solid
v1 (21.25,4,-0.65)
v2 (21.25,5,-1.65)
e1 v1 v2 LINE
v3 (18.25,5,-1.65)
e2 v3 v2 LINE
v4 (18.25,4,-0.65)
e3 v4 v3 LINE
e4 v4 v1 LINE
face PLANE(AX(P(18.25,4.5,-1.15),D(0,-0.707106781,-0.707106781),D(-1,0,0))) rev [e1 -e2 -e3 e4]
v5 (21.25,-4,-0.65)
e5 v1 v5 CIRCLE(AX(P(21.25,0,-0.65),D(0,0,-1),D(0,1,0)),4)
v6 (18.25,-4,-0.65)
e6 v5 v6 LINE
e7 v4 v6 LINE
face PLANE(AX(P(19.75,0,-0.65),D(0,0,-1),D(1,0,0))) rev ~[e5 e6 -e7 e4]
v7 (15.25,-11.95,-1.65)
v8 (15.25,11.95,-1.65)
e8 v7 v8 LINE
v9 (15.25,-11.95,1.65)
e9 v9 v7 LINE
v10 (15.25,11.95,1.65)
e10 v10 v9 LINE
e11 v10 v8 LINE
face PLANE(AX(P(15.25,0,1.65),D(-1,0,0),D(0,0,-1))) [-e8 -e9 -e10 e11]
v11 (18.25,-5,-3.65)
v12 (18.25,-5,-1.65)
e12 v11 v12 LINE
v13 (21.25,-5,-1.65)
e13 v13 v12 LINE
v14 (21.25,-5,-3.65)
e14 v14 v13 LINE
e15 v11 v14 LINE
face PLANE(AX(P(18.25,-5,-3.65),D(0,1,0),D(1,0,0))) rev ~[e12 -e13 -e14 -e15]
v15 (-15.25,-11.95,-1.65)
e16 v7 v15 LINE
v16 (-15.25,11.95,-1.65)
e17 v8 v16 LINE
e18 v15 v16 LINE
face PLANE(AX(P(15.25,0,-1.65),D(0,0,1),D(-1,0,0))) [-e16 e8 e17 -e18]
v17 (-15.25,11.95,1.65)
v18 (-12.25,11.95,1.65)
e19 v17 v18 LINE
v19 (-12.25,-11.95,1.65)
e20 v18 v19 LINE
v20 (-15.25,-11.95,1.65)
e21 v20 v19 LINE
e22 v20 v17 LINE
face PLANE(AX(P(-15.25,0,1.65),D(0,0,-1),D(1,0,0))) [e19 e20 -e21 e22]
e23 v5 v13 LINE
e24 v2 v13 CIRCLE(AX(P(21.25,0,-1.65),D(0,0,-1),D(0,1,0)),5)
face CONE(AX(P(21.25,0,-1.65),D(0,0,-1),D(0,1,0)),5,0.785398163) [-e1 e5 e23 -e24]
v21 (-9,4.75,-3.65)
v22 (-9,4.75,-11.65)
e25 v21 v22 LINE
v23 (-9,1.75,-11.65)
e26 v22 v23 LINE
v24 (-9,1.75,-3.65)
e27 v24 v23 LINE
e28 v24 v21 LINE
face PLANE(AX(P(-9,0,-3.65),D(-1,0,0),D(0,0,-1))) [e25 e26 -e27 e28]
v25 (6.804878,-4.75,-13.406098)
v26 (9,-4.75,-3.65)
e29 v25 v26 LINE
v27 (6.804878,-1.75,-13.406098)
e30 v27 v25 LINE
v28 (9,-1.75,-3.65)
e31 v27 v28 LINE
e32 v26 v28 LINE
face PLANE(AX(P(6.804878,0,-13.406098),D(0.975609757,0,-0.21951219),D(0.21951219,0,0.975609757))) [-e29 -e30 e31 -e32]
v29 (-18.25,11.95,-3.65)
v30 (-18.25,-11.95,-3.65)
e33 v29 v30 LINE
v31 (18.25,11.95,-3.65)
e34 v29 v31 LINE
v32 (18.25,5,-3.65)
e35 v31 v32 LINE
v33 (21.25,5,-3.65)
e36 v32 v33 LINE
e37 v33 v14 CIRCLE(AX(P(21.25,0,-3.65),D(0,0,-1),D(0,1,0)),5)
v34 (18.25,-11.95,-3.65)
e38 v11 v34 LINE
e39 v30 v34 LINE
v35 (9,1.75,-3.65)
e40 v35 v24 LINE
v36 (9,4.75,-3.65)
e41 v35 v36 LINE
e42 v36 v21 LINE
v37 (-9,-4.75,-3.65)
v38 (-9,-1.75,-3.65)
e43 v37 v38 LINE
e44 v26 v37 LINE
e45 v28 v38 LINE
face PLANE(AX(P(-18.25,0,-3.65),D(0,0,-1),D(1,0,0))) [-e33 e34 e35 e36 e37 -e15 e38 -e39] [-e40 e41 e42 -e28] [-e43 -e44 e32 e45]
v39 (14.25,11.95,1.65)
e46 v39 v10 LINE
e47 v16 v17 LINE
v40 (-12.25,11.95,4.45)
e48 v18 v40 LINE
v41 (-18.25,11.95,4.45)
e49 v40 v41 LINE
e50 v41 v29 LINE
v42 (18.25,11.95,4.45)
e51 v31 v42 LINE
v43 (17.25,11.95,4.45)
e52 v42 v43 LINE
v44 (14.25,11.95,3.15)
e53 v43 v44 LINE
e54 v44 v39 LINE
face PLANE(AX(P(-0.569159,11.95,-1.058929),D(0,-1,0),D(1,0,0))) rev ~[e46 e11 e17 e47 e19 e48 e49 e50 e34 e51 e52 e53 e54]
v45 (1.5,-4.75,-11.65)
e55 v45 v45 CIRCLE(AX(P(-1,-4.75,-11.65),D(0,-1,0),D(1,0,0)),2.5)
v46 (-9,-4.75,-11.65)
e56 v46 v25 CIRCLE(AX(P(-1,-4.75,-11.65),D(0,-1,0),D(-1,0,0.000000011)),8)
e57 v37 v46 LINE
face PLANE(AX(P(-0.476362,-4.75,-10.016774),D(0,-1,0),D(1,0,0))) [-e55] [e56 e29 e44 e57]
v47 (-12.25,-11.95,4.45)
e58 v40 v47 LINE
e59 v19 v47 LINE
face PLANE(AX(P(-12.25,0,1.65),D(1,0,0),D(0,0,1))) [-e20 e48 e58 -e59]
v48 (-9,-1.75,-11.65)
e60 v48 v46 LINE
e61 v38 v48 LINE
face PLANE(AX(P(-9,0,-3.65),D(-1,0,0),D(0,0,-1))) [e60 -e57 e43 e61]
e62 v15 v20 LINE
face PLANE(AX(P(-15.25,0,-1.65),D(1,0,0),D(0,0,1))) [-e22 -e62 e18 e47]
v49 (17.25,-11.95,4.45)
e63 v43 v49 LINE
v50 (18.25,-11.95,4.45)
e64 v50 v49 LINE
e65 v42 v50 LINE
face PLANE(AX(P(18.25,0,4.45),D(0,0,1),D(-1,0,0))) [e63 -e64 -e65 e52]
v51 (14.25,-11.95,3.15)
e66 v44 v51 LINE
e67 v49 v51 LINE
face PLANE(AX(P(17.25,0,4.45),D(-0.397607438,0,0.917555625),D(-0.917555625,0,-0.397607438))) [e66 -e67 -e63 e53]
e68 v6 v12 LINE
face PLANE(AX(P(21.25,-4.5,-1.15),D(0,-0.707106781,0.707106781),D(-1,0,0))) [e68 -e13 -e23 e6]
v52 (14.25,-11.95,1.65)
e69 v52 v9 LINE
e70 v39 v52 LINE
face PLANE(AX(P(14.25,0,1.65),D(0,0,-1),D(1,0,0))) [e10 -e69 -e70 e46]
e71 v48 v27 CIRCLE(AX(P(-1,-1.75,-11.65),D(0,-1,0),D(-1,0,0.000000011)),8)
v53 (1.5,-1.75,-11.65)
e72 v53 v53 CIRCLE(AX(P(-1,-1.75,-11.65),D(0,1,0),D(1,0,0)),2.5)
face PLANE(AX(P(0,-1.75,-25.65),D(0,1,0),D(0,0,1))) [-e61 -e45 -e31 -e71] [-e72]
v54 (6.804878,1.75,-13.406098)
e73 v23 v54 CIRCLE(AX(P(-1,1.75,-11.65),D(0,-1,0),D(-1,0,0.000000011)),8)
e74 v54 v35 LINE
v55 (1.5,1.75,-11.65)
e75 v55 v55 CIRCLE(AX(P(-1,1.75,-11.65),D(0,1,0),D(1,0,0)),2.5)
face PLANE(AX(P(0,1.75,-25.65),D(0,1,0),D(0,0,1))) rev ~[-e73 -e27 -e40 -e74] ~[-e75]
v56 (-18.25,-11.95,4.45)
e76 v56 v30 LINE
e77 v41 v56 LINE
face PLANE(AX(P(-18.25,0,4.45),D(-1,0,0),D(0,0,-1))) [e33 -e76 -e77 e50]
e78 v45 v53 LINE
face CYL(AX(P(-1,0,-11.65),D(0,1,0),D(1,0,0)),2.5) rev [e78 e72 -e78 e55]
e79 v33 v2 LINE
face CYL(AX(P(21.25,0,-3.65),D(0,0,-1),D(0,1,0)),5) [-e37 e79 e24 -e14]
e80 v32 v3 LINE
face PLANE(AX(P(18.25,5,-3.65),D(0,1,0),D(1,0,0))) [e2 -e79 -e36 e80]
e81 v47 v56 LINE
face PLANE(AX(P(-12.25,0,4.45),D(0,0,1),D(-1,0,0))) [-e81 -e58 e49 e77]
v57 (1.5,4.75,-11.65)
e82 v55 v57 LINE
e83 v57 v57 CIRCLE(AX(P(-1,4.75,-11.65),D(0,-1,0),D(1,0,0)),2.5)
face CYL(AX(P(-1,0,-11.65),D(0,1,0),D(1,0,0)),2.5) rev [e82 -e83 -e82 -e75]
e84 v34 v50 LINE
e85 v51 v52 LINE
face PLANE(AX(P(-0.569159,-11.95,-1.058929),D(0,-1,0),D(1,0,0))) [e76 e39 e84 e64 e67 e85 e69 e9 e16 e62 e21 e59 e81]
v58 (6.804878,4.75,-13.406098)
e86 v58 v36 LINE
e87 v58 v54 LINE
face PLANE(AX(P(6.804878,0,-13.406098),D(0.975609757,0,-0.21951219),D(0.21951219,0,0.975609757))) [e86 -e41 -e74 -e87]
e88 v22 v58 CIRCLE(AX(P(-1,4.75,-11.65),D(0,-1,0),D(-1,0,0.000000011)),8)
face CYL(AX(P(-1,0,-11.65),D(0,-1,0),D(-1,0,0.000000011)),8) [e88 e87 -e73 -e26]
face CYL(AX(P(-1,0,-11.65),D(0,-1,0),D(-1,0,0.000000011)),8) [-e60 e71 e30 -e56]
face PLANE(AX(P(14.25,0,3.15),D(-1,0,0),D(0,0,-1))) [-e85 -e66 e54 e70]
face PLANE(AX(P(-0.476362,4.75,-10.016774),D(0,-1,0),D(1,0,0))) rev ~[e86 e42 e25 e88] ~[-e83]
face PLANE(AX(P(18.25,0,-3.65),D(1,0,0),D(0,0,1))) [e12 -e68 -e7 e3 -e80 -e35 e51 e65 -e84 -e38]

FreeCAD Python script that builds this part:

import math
import FreeCAD as App
import Part
import Sketcher

V = App.Vector


def edges_at(feature, points):
    """Names of the edges that pass closest to the given points."""
    edges = feature.Shape.Edges
    near = lambda p: min(range(len(edges)), key=lambda i: edges[i].distToShape(Part.Vertex(*p))[0])
    return sorted({f"Edge{near(p) + 1}" for p in points})


def add_polygon(sketch, points):
    """Adds a closed chain of lines whose ends are joined by coincident constraints."""
    first, n = sketch.GeometryCount, len(points)
    for a, b in zip(points, points[1:] + points[:1]):
        sketch.addGeometry(Part.LineSegment(App.Vector(*a, 0), App.Vector(*b, 0)), False)
    for i in range(n):
        sketch.addConstraint(Sketcher.Constraint("Coincident", first + i, 2, first + (i + 1) % n, 1))

doc = App.newDocument("Part")
body = doc.addObject("PartDesign::Body", "Body")

# Sketch on XZ plane
sketch1 = body.newObject("Sketcher::SketchObject", "Sketch")
sketch1.AttachmentSupport = (doc.getObject("XZ_Plane"), [""])
sketch1.MapMode = "FlatFace"
add_polygon(sketch1, [(-15.2, 1.6), (-12.2, 1.6), (-12.2, 4.5), (-18.2, 4.5), (-18.2, -3.6), (18.2, -3.6), (18.2, 4.5), (17.2, 4.5), (14.2, 3.1), (14.2, 1.6), (15.2, 1.6), (15.2, -1.6), (-15.2, -1.6)])  # lines 0-12
sketch1.addConstraint([
    Sketcher.Constraint("Horizontal", 0),
    Sketcher.Constraint("Vertical", 1),
    Sketcher.Constraint("Horizontal", 2),
    Sketcher.Constraint("Vertical", 3),
    Sketcher.Constraint("Horizontal", 4),
    Sketcher.Constraint("Vertical", 5),
    Sketcher.Constraint("Horizontal", 6),
    Sketcher.Constraint("Vertical", 8),
    Sketcher.Constraint("Horizontal", 9),
    Sketcher.Constraint("Vertical", 10),
    Sketcher.Constraint("Horizontal", 11),
    Sketcher.Constraint("Vertical", 12),
    Sketcher.Constraint("Symmetric", 9, 2, 11, 2, -1, 1),
    Sketcher.Constraint("Symmetric", 2, 2, 5, 2, -2),
    Sketcher.Constraint("Horizontal", 0, 2, 8, 2),
    Sketcher.Constraint("Equal", 6, 9),
    Sketcher.Constraint("DistanceX", 0, 1, 0, 2, 3.0),
    Sketcher.Constraint("DistanceX", 2, 2, 2, 1, 6.0),
    Sketcher.Constraint("DistanceX", 6, 2, 6, 1, 1.0),
    Sketcher.Constraint("DistanceX", 4, 1, 4, 2, 36.5),
    Sketcher.Constraint("DistanceY", 1, 1, 1, 2, 2.8),
    Sketcher.Constraint("DistanceY", 3, 2, 3, 1, 8.1),
    Sketcher.Constraint("DistanceY", 8, 2, 8, 1, 1.5),
    Sketcher.Constraint("DistanceY", 10, 2, 10, 1, 3.3),
])
pad1 = body.newObject("PartDesign::Pad", "Pad")
pad1.Profile = sketch1
pad1.Length = 23.9
pad1.Midplane = True

# Sketch on XZ plane
sketch2 = body.newObject("Sketcher::SketchObject", "Sketch001")
sketch2.AttachmentSupport = (doc.getObject("XZ_Plane"), [""])
sketch2.MapMode = "FlatFace"
sketch2.addGeometry([
    Part.LineSegment(V(-9, -3.6, 0), V(-9, -11.7, 0)),  # 0
    Part.ArcOfCircle(Part.Circle(V(-1, -11.7, 0), V(0, 0, 1), 8), math.radians(180), math.radians(347)),  # 1
    Part.LineSegment(V(6.8, -13.4, 0), V(9, -3.6, 0)),  # 2
    Part.LineSegment(V(9, -3.6, 0), V(-9, -3.6, 0)),  # 3
    Part.Circle(V(-1, -11.7, 0), V(0, 0, 1), 2.5),  # 4
], False)
sketch2.addConstraint([
    Sketcher.Constraint("Tangent", 0, 2, 1, 1),
    Sketcher.Constraint("Tangent", 1, 2, 2, 1),
    Sketcher.Constraint("Coincident", 2, 2, 3, 1),
    Sketcher.Constraint("Coincident", 3, 2, 0, 1),
    Sketcher.Constraint("Vertical", 0),
    Sketcher.Constraint("Horizontal", 3),
    Sketcher.Constraint("Coincident", 4, 3, 1, 3),
    Sketcher.Constraint("Diameter", 4, 5.0),
    Sketcher.Constraint("Radius", 1, 8.0),
    Sketcher.Constraint("DistanceX", 3, 2, 3, 1, 18.0),
    Sketcher.Constraint("DistanceY", 0, 2, 0, 1, 8.0),
    Sketcher.Constraint("DistanceX", 1, 3, -1, 1, 1.0),
    Sketcher.Constraint("DistanceY", 1, 3, -1, 1, 11.65),
])
pad2 = body.newObject("PartDesign::Pad", "Pad001")
pad2.Profile = sketch2
pad2.Length = 9.5
pad2.Midplane = True

# Sketch on YZ plane
sketch3 = body.newObject("Sketcher::SketchObject", "Sketch002")
sketch3.AttachmentSupport = (doc.getObject("YZ_Plane"), [""])
sketch3.MapMode = "FlatFace"
add_polygon(sketch3, [(-1.8, -3.6), (-1.8, -25.6), (1.8, -25.6), (1.8, -3.6)])  # lines 0-3
sketch3.addConstraint([
    Sketcher.Constraint("Vertical", 0),
    Sketcher.Constraint("Horizontal", 1),
    Sketcher.Constraint("Vertical", 2),
    Sketcher.Constraint("Horizontal", 3),
    Sketcher.Constraint("DistanceY", 0, 2, 0, 1, 22.0),
    Sketcher.Constraint("DistanceX", 1, 1, 1, 2, 3.5),
    Sketcher.Constraint("DistanceX", 0, 2, -1, 1, 1.75),
    Sketcher.Constraint("DistanceY", 0, 2, -1, 1, 25.65),
])
pocket1 = body.newObject("PartDesign::Pocket", "Pocket")
pocket1.Profile = sketch3
pocket1.Length = 25
pocket1.Midplane = True

# Sketch on XY plane
sketch4 = body.newObject("Sketcher::SketchObject", "Sketch003")
sketch4.AttachmentSupport = (doc.getObject("XY_Plane"), [""])
sketch4.MapMode = "FlatFace"
sketch4.AttachmentOffset = App.Placement(V(0, 0, -3.65), App.Rotation())
sketch4.addGeometry([
    Part.LineSegment(V(18.2, -5, 0), V(18.2, 5, 0)),
    Part.LineSegment(V(18.2, 5, 0), V(21.2, 5, 0)),
    Part.ArcOfCircle(Part.Circle(V(21.2, 0, 0), V(0, 0, 1), 5), math.radians(-90), math.radians(90)),
    Part.LineSegment(V(21.2, -5, 0), V(18.2, -5, 0)),
], False)
sketch4.addConstraint([
    Sketcher.Constraint("Coincident", 0, 2, 1, 1),
    Sketcher.Constraint("Tangent", 1, 2, 2, 2),
    Sketcher.Constraint("Tangent", 2, 1, 3, 1),
    Sketcher.Constraint("Coincident", 3, 2, 0, 1),
    Sketcher.Constraint("Vertical", 0),
    Sketcher.Constraint("Horizontal", 1),
    Sketcher.Constraint("Horizontal", 3),
    Sketcher.Constraint("PointOnObject", 2, 3, -1),
    Sketcher.Constraint("Radius", 2, 5.0),
    Sketcher.Constraint("DistanceX", 1, 1, 1, 2, 3.0),
    Sketcher.Constraint("DistanceX", -1, 1, 2, 3, 21.25),
])
pad3 = body.newObject("PartDesign::Pad", "Pad002")
pad3.Profile = sketch4
pad3.Length = 3
doc.recompute()

chamfer = body.newObject("PartDesign::Chamfer", "Chamfer")
chamfer.Base = (pad3, edges_at(pad3, [(26.25, 0, -0.65)]))
chamfer.Size = 1

doc.recompute()
